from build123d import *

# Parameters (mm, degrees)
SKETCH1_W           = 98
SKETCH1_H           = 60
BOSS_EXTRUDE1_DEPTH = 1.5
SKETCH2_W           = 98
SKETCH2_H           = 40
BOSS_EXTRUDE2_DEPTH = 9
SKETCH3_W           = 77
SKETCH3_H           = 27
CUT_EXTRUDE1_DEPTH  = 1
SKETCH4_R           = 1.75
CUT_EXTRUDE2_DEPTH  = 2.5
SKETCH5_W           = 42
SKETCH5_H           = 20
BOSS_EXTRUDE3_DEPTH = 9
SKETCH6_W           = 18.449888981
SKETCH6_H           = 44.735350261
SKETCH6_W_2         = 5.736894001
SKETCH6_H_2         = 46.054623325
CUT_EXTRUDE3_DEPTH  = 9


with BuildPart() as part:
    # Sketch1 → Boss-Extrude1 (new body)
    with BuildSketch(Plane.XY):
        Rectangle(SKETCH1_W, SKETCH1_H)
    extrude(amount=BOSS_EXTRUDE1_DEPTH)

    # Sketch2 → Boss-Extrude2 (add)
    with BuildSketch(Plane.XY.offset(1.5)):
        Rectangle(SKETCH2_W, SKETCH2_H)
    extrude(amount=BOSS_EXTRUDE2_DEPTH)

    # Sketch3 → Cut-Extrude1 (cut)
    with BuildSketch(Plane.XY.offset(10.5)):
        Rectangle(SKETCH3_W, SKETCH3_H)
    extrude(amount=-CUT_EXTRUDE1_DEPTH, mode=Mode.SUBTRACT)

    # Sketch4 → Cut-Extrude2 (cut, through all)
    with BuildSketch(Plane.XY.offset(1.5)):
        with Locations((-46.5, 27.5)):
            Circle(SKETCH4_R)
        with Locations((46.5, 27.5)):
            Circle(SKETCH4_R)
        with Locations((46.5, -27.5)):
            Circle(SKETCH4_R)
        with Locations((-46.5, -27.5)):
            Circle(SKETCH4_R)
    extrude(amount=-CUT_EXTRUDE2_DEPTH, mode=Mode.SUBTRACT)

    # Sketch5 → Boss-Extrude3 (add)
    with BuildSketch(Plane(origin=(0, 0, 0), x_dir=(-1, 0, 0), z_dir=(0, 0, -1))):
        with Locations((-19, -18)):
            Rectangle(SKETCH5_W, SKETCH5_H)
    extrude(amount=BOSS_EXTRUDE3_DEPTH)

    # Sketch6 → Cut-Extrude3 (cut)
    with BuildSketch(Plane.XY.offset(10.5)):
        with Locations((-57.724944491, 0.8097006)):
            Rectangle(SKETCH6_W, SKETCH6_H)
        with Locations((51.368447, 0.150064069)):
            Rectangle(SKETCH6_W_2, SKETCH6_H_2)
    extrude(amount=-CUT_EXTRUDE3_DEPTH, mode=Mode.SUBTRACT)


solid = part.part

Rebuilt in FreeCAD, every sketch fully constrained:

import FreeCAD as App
import Part
import Sketcher
from FreeCAD import Vector

doc = App.newDocument("Part")
params = doc.addObject("Spreadsheet::Sheet", "Params")
for row, (alias, value) in enumerate([
    ("sketch1_width", "98 mm"),
    ("sketch1_height", "60 mm"),
    ("pad1_length", "1.5 mm"),
    ("sketch2_width", "98 mm"),
    ("sketch2_height", "40 mm"),
    ("pad2_length", "9 mm"),
    ("sketch3_width", "77 mm"),
    ("sketch3_height", "27 mm"),
    ("pocket1_length", "1 mm"),
    ("sketch4_diameter", "3.5 mm"),
    ("sketch5_width", "42 mm"),
    ("sketch5_height", "20 mm"),
    ("pad3_length", "9 mm"),
    ("pocket3_length", "9 mm"),
], start=1):
    params.set(f"A{row}", alias)
    params.set(f"B{row}", "=" + value)
    params.setAlias(f"B{row}", alias)

body = doc.addObject("PartDesign::Body", "Body")

sketch1 = doc.addObject("Sketcher::SketchObject", "Sketch")
body.addObject(sketch1)
sketch1.AttachmentSupport = (doc.XY_Plane, [""])
sketch1.MapMode = "FlatFace"
sketch1.addGeometry(Part.LineSegment(Vector(-49, 30, 0), Vector(-49, -30, 0)), False)
sketch1.addGeometry(Part.LineSegment(Vector(-49, -30, 0), Vector(49, -30, 0)), False)
sketch1.addGeometry(Part.LineSegment(Vector(49, -30, 0), Vector(49, 30, 0)), False)
sketch1.addGeometry(Part.LineSegment(Vector(49, 30, 0), Vector(-49, 30, 0)), False)
sketch1.addConstraint(Sketcher.Constraint("Coincident", 0, 2, 1, 1))
sketch1.addConstraint(Sketcher.Constraint("Coincident", 1, 2, 2, 1))
sketch1.addConstraint(Sketcher.Constraint("Coincident", 2, 2, 3, 1))
sketch1.addConstraint(Sketcher.Constraint("Coincident", 3, 2, 0, 1))
sketch1.addConstraint(Sketcher.Constraint("Vertical", 0))
sketch1.addConstraint(Sketcher.Constraint("Horizontal", 1))
sketch1.addConstraint(Sketcher.Constraint("Vertical", 2))
sketch1.addConstraint(Sketcher.Constraint("Horizontal", 3))
sketch1.addConstraint(Sketcher.Constraint("Symmetric", 0, 2, 2, 2, -1, 1))
sketch1.addConstraint(Sketcher.Constraint("DistanceX", 1, 1, 1, 2, 98.0))
sketch1.addConstraint(Sketcher.Constraint("DistanceY", 0, 2, 0, 1, 60.0))
sketch1.setExpression("Constraints[9]", "Params.sketch1_width")
sketch1.setExpression("Constraints[10]", "Params.sketch1_height")
pad1 = doc.addObject("PartDesign::Pad", "Pad")
body.addObject(pad1)
pad1.Profile = sketch1
pad1.setExpression("Length", "Params.pad1_length")

sketch2 = doc.addObject("Sketcher::SketchObject", "Sketch001")
body.addObject(sketch2)
sketch2.AttachmentSupport = (doc.XY_Plane, [""])
sketch2.MapMode = "FlatFace"
sketch2.AttachmentOffset = App.Placement(Vector(0, 0, 1.5), App.Rotation())
sketch2.addGeometry(Part.LineSegment(Vector(-49, 20, 0), Vector(-49, -20, 0)), False)
sketch2.addGeometry(Part.LineSegment(Vector(-49, -20, 0), Vector(49, -20, 0)), False)
sketch2.addGeometry(Part.LineSegment(Vector(49, -20, 0), Vector(49, 20, 0)), False)
sketch2.addGeometry(Part.LineSegment(Vector(49, 20, 0), Vector(-49, 20, 0)), False)
sketch2.addConstraint(Sketcher.Constraint("Coincident", 0, 2, 1, 1))
sketch2.addConstraint(Sketcher.Constraint("Coincident", 1, 2, 2, 1))
sketch2.addConstraint(Sketcher.Constraint("Coincident", 2, 2, 3, 1))
sketch2.addConstraint(Sketcher.Constraint("Coincident", 3, 2, 0, 1))
sketch2.addConstraint(Sketcher.Constraint("Vertical", 0))
sketch2.addConstraint(Sketcher.Constraint("Horizontal", 1))
sketch2.addConstraint(Sketcher.Constraint("Vertical", 2))
sketch2.addConstraint(Sketcher.Constraint("Horizontal", 3))
sketch2.addConstraint(Sketcher.Constraint("Symmetric", 0, 2, 2, 2, -1, 1))
sketch2.addConstraint(Sketcher.Constraint("DistanceX", 1, 1, 1, 2, 98.0))
sketch2.addConstraint(Sketcher.Constraint("DistanceY", 0, 2, 0, 1, 40.0))
sketch2.setExpression("Constraints[9]", "Params.sketch2_width")
sketch2.setExpression("Constraints[10]", "Params.sketch2_height")
pad2 = doc.addObject("PartDesign::Pad", "Pad001")
body.addObject(pad2)
pad2.Profile = sketch2
pad2.setExpression("Length", "Params.pad2_length")

sketch3 = doc.addObject("Sketcher::SketchObject", "Sketch002")
body.addObject(sketch3)
sketch3.AttachmentSupport = (doc.XY_Plane, [""])
sketch3.MapMode = "FlatFace"
sketch3.AttachmentOffset = App.Placement(Vector(0, 0, 10.5), App.Rotation())
sketch3.addGeometry(Part.LineSegment(Vector(-38.5, 13.5, 0), Vector(-38.5, -13.5, 0)), False)
sketch3.addGeometry(Part.LineSegment(Vector(-38.5, -13.5, 0), Vector(38.5, -13.5, 0)), False)
sketch3.addGeometry(Part.LineSegment(Vector(38.5, -13.5, 0), Vector(38.5, 13.5, 0)), False)
sketch3.addGeometry(Part.LineSegment(Vector(38.5, 13.5, 0), Vector(-38.5, 13.5, 0)), False)
sketch3.addConstraint(Sketcher.Constraint("Coincident", 0, 2, 1, 1))
sketch3.addConstraint(Sketcher.Constraint("Coincident", 1, 2, 2, 1))
sketch3.addConstraint(Sketcher.Constraint("Coincident", 2, 2, 3, 1))
sketch3.addConstraint(Sketcher.Constraint("Coincident", 3, 2, 0, 1))
sketch3.addConstraint(Sketcher.Constraint("Vertical", 0))
sketch3.addConstraint(Sketcher.Constraint("Horizontal", 1))
sketch3.addConstraint(Sketcher.Constraint("Vertical", 2))
sketch3.addConstraint(Sketcher.Constraint("Horizontal", 3))
sketch3.addConstraint(Sketcher.Constraint("Symmetric", 0, 2, 2, 2, -1, 1))
sketch3.addConstraint(Sketcher.Constraint("DistanceX", 1, 1, 1, 2, 77.0))
sketch3.addConstraint(Sketcher.Constraint("DistanceY", 0, 2, 0, 1, 27.0))
sketch3.setExpression("Constraints[9]", "Params.sketch3_width")
sketch3.setExpression("Constraints[10]", "Params.sketch3_height")
pocket1 = doc.addObject("PartDesign::Pocket", "Pocket")
body.addObject(pocket1)
pocket1.Profile = sketch3
pocket1.setExpression("Length", "Params.pocket1_length")

sketch4 = doc.addObject("Sketcher::SketchObject", "Sketch003")
body.addObject(sketch4)
sketch4.AttachmentSupport = (doc.XY_Plane, [""])
sketch4.MapMode = "FlatFace"
sketch4.AttachmentOffset = App.Placement(Vector(0, 0, 1.5), App.Rotation())
sketch4.addGeometry(Part.Circle(Vector(-46.5, 27.5, 0), Vector(0, 0, 1), 1.75), False)
sketch4.addGeometry(Part.Circle(Vector(46.5, 27.5, 0), Vector(0, 0, 1), 1.75), False)
sketch4.addGeometry(Part.Circle(Vector(46.5, -27.5, 0), Vector(0, 0, 1), 1.75), False)
sketch4.addGeometry(Part.Circle(Vector(-46.5, -27.5, 0), Vector(0, 0, 1), 1.75), False)
sketch4.addConstraint(Sketcher.Constraint("Equal", 0, 1))
sketch4.addConstraint(Sketcher.Constraint("Equal", 1, 2))
sketch4.addConstraint(Sketcher.Constraint("Equal", 2, 3))
sketch4.addConstraint(Sketcher.Constraint("Symmetric", 0, 3, 2, 3, -1, 1))
sketch4.addConstraint(Sketcher.Constraint("Symmetric", 1, 3, 3, 3, -1, 1))
sketch4.addConstraint(Sketcher.Constraint("Symmetric", 0, 3, 1, 3, -2))
sketch4.addConstraint(Sketcher.Constraint("Diameter", 0, 3.5))
sketch4.addConstraint(Sketcher.Constraint("DistanceX", 0, 3, 1, 3, 93.0))
sketch4.addConstraint(Sketcher.Constraint("DistanceY", 2, 3, 1, 3, 55.0))
sketch4.setExpression("Constraints[6]", "Params.sketch4_diameter")
pocket2 = doc.addObject("PartDesign::Pocket", "Pocket001")
body.addObject(pocket2)
pocket2.Profile = sketch4
pocket2.Type = "ThroughAll"

sketch5 = doc.addObject("Sketcher::SketchObject", "Sketch004")
body.addObject(sketch5)
sketch5.AttachmentSupport = (doc.XY_Plane, [""])
sketch5.MapMode = "FlatFace"
sketch5.addGeometry(Part.LineSegment(Vector(40, -8, 0), Vector(40, -28, 0)), False)
sketch5.addGeometry(Part.LineSegment(Vector(40, -28, 0), Vector(-2, -28, 0)), False)
sketch5.addGeometry(Part.LineSegment(Vector(-2, -28, 0), Vector(-2, -8, 0)), False)
sketch5.addGeometry(Part.LineSegment(Vector(-2, -8, 0), Vector(40, -8, 0)), False)
sketch5.addConstraint(Sketcher.Constraint("Coincident", 0, 2, 1, 1))
sketch5.addConstraint(Sketcher.Constraint("Coincident", 1, 2, 2, 1))
sketch5.addConstraint(Sketcher.Constraint("Coincident", 2, 2, 3, 1))
sketch5.addConstraint(Sketcher.Constraint("Coincident", 3, 2, 0, 1))
sketch5.addConstraint(Sketcher.Constraint("Vertical", 0))
sketch5.addConstraint(Sketcher.Constraint("Horizontal", 1))
sketch5.addConstraint(Sketcher.Constraint("Vertical", 2))
sketch5.addConstraint(Sketcher.Constraint("Horizontal", 3))
sketch5.addConstraint(Sketcher.Constraint("DistanceX", 1, 2, 1, 1, 42.0))
sketch5.addConstraint(Sketcher.Constraint("DistanceY", 0, 2, 0, 1, 20.0))
sketch5.addConstraint(Sketcher.Constraint("DistanceX", -1, 1, 0, 2, 40.0))
sketch5.addConstraint(Sketcher.Constraint("DistanceY", 0, 2, -1, 1, 28.0))
sketch5.setExpression("Constraints[8]", "Params.sketch5_width")
sketch5.setExpression("Constraints[9]", "Params.sketch5_height")
pad3 = doc.addObject("PartDesign::Pad", "Pad002")
body.addObject(pad3)
pad3.Profile = sketch5
pad3.setExpression("Length", "Params.pad3_length")
pad3.Reversed = True

sketch6 = doc.addObject("Sketcher::SketchObject", "Sketch005")
body.addObject(sketch6)
sketch6.AttachmentSupport = (doc.XY_Plane, [""])
sketch6.MapMode = "FlatFace"
sketch6.AttachmentOffset = App.Placement(Vector(0, 0, 10.5), App.Rotation())
sketch6.addGeometry(Part.LineSegment(Vector(-66.949889, 23.177376, 0), Vector(-66.949889, -21.557975, 0)), False)
sketch6.addGeometry(Part.LineSegment(Vector(-66.949889, -21.557975, 0), Vector(-48.5, -21.557975, 0)), False)
sketch6.addGeometry(Part.LineSegment(Vector(-48.5, -21.557975, 0), Vector(-48.5, 23.177376, 0)), False)
sketch6.addGeometry(Part.LineSegment(Vector(-48.5, 23.177376, 0), Vector(-66.949889, 23.177376, 0)), False)
sketch6.addGeometry(Part.LineSegment(Vector(48.5, 23.177376, 0), Vector(48.5, -22.877248, 0)), False)
sketch6.addGeometry(Part.LineSegment(Vector(48.5, -22.877248, 0), Vector(54.236894, -22.877248, 0)), False)
sketch6.addGeometry(Part.LineSegment(Vector(54.236894, -22.877248, 0), Vector(54.236894, 23.177376, 0)), False)
sketch6.addGeometry(Part.LineSegment(Vector(54.236894, 23.177376, 0), Vector(48.5, 23.177376, 0)), False)
sketch6.addConstraint(Sketcher.Constraint("Coincident", 0, 2, 1, 1))
sketch6.addConstraint(Sketcher.Constraint("Coincident", 1, 2, 2, 1))
sketch6.addConstraint(Sketcher.Constraint("Coincident", 2, 2, 3, 1))
sketch6.addConstraint(Sketcher.Constraint("Coincident", 3, 2, 0, 1))
sketch6.addConstraint(Sketcher.Constraint("Coincident", 4, 2, 5, 1))
sketch6.addConstraint(Sketcher.Constraint("Coincident", 5, 2, 6, 1))
sketch6.addConstraint(Sketcher.Constraint("Coincident", 6, 2, 7, 1))
sketch6.addConstraint(Sketcher.Constraint("Coincident", 7, 2, 4, 1))
sketch6.addConstraint(Sketcher.Constraint("Vertical", 0))
sketch6.addConstraint(Sketcher.Constraint("Horizontal", 1))
sketch6.addConstraint(Sketcher.Constraint("Vertical", 2))
sketch6.addConstraint(Sketcher.Constraint("Horizontal", 3))
sketch6.addConstraint(Sketcher.Constraint("Vertical", 4))
sketch6.addConstraint(Sketcher.Constraint("Horizontal", 5))
sketch6.addConstraint(Sketcher.Constraint("Vertical", 6))
sketch6.addConstraint(Sketcher.Constraint("Horizontal", 7))
sketch6.addConstraint(Sketcher.Constraint("Symmetric", 2, 2, 7, 2, -2))
sketch6.addConstraint(Sketcher.Constraint("DistanceX", 1, 2, 4, 2, 97.0))
sketch6.addConstraint(Sketcher.Constraint("DistanceX", 1, 1, 1, 2, 18.449889))
sketch6.addConstraint(Sketcher.Constraint("DistanceY", 0, 2, 0, 1, 44.73535))
sketch6.addConstraint(Sketcher.Constraint("DistanceX", 5, 1, 5, 2, 5.736894))
sketch6.addConstraint(Sketcher.Constraint("DistanceY", 4, 2, 4, 1, 46.054623))
sketch6.addConstraint(Sketcher.Constraint("DistanceY", 0, 2, -1, 1, 21.557975))
pocket3 = doc.addObject("PartDesign::Pocket", "Pocket002")
body.addObject(pocket3)
pocket3.Profile = sketch6
pocket3.setExpression("Length", "Params.pocket3_length")

doc.recompute()
